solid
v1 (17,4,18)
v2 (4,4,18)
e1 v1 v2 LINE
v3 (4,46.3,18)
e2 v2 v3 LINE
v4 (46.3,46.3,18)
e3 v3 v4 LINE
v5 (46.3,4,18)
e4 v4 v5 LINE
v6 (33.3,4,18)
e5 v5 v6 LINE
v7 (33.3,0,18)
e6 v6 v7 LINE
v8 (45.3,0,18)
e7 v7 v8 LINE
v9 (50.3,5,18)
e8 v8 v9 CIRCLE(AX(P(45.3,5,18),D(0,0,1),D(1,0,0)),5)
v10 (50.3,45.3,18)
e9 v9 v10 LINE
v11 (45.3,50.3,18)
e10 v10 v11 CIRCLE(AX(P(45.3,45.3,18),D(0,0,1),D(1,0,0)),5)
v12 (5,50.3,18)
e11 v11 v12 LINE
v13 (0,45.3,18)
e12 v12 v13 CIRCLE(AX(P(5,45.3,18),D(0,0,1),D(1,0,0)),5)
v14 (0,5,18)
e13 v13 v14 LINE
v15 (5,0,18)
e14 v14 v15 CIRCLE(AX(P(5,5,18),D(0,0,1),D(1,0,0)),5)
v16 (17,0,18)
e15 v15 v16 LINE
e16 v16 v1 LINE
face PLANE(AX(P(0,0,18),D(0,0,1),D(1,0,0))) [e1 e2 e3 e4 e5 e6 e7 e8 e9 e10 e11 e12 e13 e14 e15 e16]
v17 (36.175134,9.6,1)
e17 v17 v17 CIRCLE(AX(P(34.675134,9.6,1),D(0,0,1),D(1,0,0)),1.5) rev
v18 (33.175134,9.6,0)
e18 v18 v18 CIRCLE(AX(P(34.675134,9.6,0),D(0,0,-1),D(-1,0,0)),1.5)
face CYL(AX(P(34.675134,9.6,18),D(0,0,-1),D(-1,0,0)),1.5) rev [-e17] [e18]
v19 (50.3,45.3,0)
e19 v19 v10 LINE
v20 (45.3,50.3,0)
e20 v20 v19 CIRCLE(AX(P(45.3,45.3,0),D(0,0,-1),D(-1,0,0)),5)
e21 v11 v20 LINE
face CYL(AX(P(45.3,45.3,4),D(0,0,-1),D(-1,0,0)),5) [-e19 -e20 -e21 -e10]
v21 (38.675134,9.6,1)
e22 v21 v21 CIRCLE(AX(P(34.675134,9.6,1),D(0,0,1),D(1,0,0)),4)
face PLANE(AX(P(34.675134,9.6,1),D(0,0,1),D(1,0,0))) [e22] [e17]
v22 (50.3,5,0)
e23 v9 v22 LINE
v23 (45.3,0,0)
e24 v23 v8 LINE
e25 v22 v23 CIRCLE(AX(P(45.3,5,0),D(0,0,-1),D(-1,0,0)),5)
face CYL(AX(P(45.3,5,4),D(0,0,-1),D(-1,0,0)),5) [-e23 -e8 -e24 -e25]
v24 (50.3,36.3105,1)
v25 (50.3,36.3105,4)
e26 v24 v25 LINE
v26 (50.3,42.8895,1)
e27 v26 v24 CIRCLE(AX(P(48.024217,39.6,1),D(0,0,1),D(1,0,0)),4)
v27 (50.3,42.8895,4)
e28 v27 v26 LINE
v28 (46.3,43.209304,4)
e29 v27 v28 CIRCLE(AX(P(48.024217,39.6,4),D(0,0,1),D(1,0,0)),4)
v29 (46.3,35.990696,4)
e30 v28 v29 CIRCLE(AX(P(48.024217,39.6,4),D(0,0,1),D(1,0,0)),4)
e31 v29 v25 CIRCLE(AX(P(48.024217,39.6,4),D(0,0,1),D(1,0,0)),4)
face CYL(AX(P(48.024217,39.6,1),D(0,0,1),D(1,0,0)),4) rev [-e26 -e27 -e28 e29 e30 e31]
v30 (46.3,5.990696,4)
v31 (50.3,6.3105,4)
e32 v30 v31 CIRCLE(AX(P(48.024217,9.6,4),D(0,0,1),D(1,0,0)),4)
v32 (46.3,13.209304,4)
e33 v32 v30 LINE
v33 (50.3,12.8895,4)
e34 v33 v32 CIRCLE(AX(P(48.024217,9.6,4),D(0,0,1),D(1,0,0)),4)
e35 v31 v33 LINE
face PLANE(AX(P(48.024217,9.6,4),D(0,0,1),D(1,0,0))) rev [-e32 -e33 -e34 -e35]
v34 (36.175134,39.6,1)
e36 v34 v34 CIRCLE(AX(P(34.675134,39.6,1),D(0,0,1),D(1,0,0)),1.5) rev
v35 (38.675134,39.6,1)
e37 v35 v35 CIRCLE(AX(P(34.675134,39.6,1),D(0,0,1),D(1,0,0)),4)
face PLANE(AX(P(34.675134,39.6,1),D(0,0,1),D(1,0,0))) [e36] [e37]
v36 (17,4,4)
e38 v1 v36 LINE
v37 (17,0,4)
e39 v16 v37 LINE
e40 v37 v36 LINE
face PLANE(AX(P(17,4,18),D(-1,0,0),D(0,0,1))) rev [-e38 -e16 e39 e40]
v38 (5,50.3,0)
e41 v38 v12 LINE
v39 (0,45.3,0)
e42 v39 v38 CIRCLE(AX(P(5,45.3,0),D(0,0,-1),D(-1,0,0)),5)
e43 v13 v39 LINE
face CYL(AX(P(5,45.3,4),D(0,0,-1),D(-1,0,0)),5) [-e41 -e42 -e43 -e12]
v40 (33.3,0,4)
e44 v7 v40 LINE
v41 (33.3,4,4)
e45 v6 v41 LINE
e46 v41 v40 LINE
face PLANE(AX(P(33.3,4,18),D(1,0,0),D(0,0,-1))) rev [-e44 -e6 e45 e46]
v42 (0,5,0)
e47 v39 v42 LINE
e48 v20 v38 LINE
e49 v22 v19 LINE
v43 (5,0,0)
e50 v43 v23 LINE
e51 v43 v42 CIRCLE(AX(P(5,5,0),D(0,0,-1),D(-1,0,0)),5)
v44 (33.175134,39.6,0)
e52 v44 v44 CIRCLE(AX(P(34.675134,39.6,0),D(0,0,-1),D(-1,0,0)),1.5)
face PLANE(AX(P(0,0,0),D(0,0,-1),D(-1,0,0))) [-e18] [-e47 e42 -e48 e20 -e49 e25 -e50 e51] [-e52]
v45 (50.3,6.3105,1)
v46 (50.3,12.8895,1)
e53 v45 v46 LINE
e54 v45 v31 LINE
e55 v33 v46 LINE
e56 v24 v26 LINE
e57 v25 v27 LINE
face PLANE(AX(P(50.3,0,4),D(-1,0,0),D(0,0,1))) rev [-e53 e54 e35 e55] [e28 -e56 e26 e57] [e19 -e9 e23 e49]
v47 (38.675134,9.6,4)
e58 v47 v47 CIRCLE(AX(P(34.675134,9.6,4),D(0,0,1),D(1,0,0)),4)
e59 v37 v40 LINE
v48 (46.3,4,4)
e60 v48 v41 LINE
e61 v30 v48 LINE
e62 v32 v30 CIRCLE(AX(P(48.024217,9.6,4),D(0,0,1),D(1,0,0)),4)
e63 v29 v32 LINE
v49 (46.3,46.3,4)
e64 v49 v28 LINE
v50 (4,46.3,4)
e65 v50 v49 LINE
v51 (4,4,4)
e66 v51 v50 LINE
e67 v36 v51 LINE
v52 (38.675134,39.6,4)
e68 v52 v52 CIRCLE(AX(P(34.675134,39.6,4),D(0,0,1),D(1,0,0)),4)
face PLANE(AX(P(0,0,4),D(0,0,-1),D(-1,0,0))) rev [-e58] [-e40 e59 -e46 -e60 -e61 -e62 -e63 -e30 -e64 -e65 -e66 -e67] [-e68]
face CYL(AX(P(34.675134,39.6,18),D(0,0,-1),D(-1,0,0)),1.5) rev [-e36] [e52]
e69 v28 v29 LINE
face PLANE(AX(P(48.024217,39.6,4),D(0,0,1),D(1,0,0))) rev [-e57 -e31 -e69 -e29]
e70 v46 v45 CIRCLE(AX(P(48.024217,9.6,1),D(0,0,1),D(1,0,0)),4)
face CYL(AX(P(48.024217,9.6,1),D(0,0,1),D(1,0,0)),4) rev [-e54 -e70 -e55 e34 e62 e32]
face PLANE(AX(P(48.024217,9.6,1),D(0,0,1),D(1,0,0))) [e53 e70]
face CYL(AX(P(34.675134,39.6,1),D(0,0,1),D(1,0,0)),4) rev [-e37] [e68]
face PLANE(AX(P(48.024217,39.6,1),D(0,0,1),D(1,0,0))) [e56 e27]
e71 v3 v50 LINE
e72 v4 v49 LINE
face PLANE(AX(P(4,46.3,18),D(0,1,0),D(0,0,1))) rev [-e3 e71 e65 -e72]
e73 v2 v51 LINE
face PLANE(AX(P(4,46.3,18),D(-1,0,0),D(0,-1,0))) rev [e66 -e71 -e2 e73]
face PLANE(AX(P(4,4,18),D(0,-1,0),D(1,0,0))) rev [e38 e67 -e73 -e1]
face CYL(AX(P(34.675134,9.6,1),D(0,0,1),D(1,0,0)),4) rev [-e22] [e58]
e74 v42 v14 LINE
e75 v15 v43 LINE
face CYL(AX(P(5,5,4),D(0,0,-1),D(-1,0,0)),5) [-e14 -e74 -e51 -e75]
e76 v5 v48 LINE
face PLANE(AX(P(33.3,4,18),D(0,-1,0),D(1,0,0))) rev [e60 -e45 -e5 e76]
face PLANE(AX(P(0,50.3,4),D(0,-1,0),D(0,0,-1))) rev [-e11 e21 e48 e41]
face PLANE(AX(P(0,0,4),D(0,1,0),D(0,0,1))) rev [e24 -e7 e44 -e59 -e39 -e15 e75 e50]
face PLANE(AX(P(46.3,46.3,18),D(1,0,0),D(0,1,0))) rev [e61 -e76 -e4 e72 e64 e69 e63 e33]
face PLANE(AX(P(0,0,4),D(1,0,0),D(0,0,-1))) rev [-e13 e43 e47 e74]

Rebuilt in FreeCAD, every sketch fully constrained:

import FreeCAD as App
import Part
import Sketcher

V = App.Vector
Q = App.Units.Quantity


def edges_at(feature, points):
    """Names of the edges that pass closest to the given points."""
    edges = feature.Shape.Edges
    near = lambda p: min(range(len(edges)), key=lambda i: edges[i].distToShape(Part.Vertex(*p))[0])
    return sorted({f"Edge{near(p) + 1}" for p in points})

doc = App.newDocument("Part")
params = doc.addObject("Spreadsheet::Sheet", "Params")
for row, (alias, value) in enumerate([
    ("sketch1_width", "50.3 mm"),
    ("pad1_length", "4 mm"),
    ("sketch2_width", "13 mm"),
    ("sketch2_width2", "17 mm"),
    ("sketch2_height", "4 mm"),
    ("sketch2_width3", "42.3 mm"),
    ("pad2_length", "14 mm"),
    ("sketch3_diameter", "3 mm"),
    ("fillet_radius", "5 mm"),
    ("sketch4_diameter", "8 mm"),
    ("pocket2_length", "3 mm"),
    ("fillet2_radius", "5 mm"),
], start=1):
    params.set(f"A{row}", alias)
    params.set(f"B{row}", "=" + value)
    params.setAlias(f"B{row}", alias)

body = doc.addObject("PartDesign::Body", "Body")

sketch1 = body.newObject("Sketcher::SketchObject", "Sketch")
sketch1.AttachmentSupport = (doc.getObject("XY_Plane"), [""])
sketch1.MapMode = "FlatFace"
sketch1.addGeometry([
    Part.LineSegment(V(0, 50.3, 0), V(0, 0, 0)),
    Part.LineSegment(V(0, 0, 0), V(50.3, 0, 0)),
    Part.LineSegment(V(50.3, 0, 0), V(50.3, 50.3, 0)),
    Part.LineSegment(V(50.3, 50.3, 0), V(0, 50.3, 0)),
], False)
sketch1.addConstraint([
    Sketcher.Constraint("Coincident", 0, 2, 1, 1),
    Sketcher.Constraint("Coincident", 1, 2, 2, 1),
    Sketcher.Constraint("Coincident", 2, 2, 3, 1),
    Sketcher.Constraint("Coincident", 3, 2, 0, 1),
    Sketcher.Constraint("Vertical", 0),
    Sketcher.Constraint("Horizontal", 1),
    Sketcher.Constraint("Vertical", 2),
    Sketcher.Constraint("Horizontal", 3),
    Sketcher.Constraint("Coincident", 0, 2, -1, 1),
    Sketcher.Constraint("Equal", 3, 0),
    Sketcher.Constraint("DistanceX", 1, 1, 1, 2, Q("50.3 mm")),
])
sketch1.setExpression("Constraints[10]", "Params.sketch1_width")
pad1 = body.newObject("PartDesign::Pad", "Pad")
pad1.Profile = sketch1
pad1.setExpression("Length", "Params.pad1_length")

sketch2 = body.newObject("Sketcher::SketchObject", "Sketch001")
sketch2.AttachmentSupport = (doc.getObject("XY_Plane"), [""])
sketch2.MapMode = "FlatFace"
sketch2.AttachmentOffset = App.Placement(V(0, 0, 4), App.Rotation())
sketch2.addGeometry([
    Part.LineSegment(V(4, 46.3, 0), V(46.3, 46.3, 0)),
    Part.LineSegment(V(46.3, 46.3, 0), V(46.3, 4, 0)),
    Part.LineSegment(V(46.3, 4, 0), V(33.3, 4, 0)),
    Part.LineSegment(V(33.3, 4, 0), V(33.3, 0, 0)),
    Part.LineSegment(V(33.3, 0, 0), V(50.3, 0, 0)),
    Part.LineSegment(V(50.3, 0, 0), V(50.3, 50.3, 0)),
    Part.LineSegment(V(50.3, 50.3, 0), V(0, 50.3, 0)),
    Part.LineSegment(V(0, 50.3, 0), V(0, 0, 0)),
    Part.LineSegment(V(0, 0, 0), V(17, 0, 0)),
    Part.LineSegment(V(17, 0, 0), V(17, 4, 0)),
    Part.LineSegment(V(17, 4, 0), V(4, 4, 0)),
    Part.LineSegment(V(4, 4, 0), V(4, 46.3, 0)),
], False)
sketch2.addConstraint([
    Sketcher.Constraint("Coincident", 0, 2, 1, 1),
    Sketcher.Constraint("Coincident", 1, 2, 2, 1),
    Sketcher.Constraint("Coincident", 2, 2, 3, 1),
    Sketcher.Constraint("Coincident", 3, 2, 4, 1),
    Sketcher.Constraint("Coincident", 4, 2, 5, 1),
    Sketcher.Constraint("Coincident", 5, 2, 6, 1),
    Sketcher.Constraint("Coincident", 6, 2, 7, 1),
    Sketcher.Constraint("Coincident", 7, 2, 8, 1),
    Sketcher.Constraint("Coincident", 8, 2, 9, 1),
    Sketcher.Constraint("Coincident", 9, 2, 10, 1),
    Sketcher.Constraint("Coincident", 10, 2, 11, 1),
    Sketcher.Constraint("Coincident", 11, 2, 0, 1),
    Sketcher.Constraint("Horizontal", 0),
    Sketcher.Constraint("Vertical", 1),
    Sketcher.Constraint("Horizontal", 2),
    Sketcher.Constraint("Vertical", 3),
    Sketcher.Constraint("Horizontal", 4),
    Sketcher.Constraint("Vertical", 5),
    Sketcher.Constraint("Horizontal", 6),
    Sketcher.Constraint("Vertical", 7),
    Sketcher.Constraint("Horizontal", 8),
    Sketcher.Constraint("Vertical", 9),
    Sketcher.Constraint("Horizontal", 10),
    Sketcher.Constraint("Vertical", 11),
    Sketcher.Constraint("Coincident", 7, 2, -1, 1),
    Sketcher.Constraint("PointOnObject", 3, 2, -1),
    Sketcher.Constraint("Horizontal", 2, 2, 9, 2),
    Sketcher.Constraint("Equal", 4, 8),
    Sketcher.Constraint("Equal", 2, 10),
    Sketcher.Constraint("Equal", 0, 1),
    Sketcher.Constraint("Equal", 6, 5),
    Sketcher.Constraint("DistanceX", 2, 2, 2, 1, Q("13 mm")),
    Sketcher.Constraint("DistanceX", 4, 1, 4, 2, Q("17 mm")),
    Sketcher.Constraint("DistanceY", 3, 2, 3, 1, Q("4 mm")),
    Sketcher.Constraint("DistanceX", 0, 1, 0, 2, Q("42.3 mm")),
])
sketch2.setExpression("Constraints[31]", "Params.sketch2_width")
sketch2.setExpression("Constraints[32]", "Params.sketch2_width2")
sketch2.setExpression("Constraints[33]", "Params.sketch2_height")
sketch2.setExpression("Constraints[34]", "Params.sketch2_width3")
pad2 = body.newObject("PartDesign::Pad", "Pad001")
pad2.Profile = sketch2
pad2.setExpression("Length", "Params.pad2_length")

sketch3 = body.newObject("Sketcher::SketchObject", "Sketch002")
sketch3.AttachmentSupport = (doc.getObject("XY_Plane"), [""])
sketch3.MapMode = "FlatFace"
sketch3.addGeometry([
    Part.Circle(V(34.675134, 39.6, 0), V(0, 0, 1), 1.5),
    Part.Circle(V(59.675134, 39.6, 0), V(0, 0, 1), 1.5),
    Part.Circle(V(59.675134, 9.6, 0), V(0, 0, 1), 1.5),
    Part.Circle(V(34.675134, 9.6, 0), V(0, 0, 1), 1.5),
], False)
sketch3.addConstraint([
    Sketcher.Constraint("Equal", 0, 1),
    Sketcher.Constraint("Equal", 1, 2),
    Sketcher.Constraint("Equal", 2, 3),
    Sketcher.Constraint("Horizontal", 0, 3, 1, 3),
    Sketcher.Constraint("Horizontal", 2, 3, 3, 3),
    Sketcher.Constraint("Vertical", 1, 3, 2, 3),
    Sketcher.Constraint("Vertical", 0, 3, 3, 3),
    Sketcher.Constraint("Diameter", 0, Q("3 mm")),
    Sketcher.Constraint("DistanceX", 0, 3, 1, 3, Q("25 mm")),
    Sketcher.Constraint("DistanceY", 2, 3, 1, 3, Q("30 mm")),
    Sketcher.Constraint("DistanceY", -1, 1, 0, 3, Q("39.6 mm")),
    Sketcher.Constraint("DistanceX", -1, 1, 0, 3, Q("34.675134 mm")),
])
sketch3.setExpression("Constraints[7]", "Params.sketch3_diameter")
pocket1 = body.newObject("PartDesign::Pocket", "Pocket")
pocket1.Profile = sketch3
pocket1.Type = "ThroughAll"
pocket1.Reversed = True
doc.recompute()

fillet = body.newObject("PartDesign::Fillet", "Fillet")
fillet.Base = (pocket1, edges_at(pocket1, [(0, 50.3, 9)]))
fillet.setExpression("Radius", "Params.fillet_radius")

sketch4 = body.newObject("Sketcher::SketchObject", "Sketch003")
sketch4.AttachmentSupport = (doc.getObject("XY_Plane"), [""])
sketch4.MapMode = "FlatFace"
sketch4.AttachmentOffset = App.Placement(V(0, 0, 4), App.Rotation())
sketch4.addGeometry([
    Part.Circle(V(34.675134, 39.6, 0), V(0, 0, 1), 4),
    Part.Circle(V(34.675134, 9.6, 0), V(0, 0, 1), 4),
    Part.Circle(V(48.024217, 39.6, 0), V(0, 0, 1), 4),
    Part.Circle(V(48.024217, 9.6, 0), V(0, 0, 1), 4),
], False)
sketch4.addConstraint([
    Sketcher.Constraint("Equal", 0, 1),
    Sketcher.Constraint("Equal", 1, 2),
    Sketcher.Constraint("Equal", 2, 3),
    Sketcher.Constraint("Horizontal", 0, 3, 2, 3),
    Sketcher.Constraint("Horizontal", 1, 3, 3, 3),
    Sketcher.Constraint("Vertical", 0, 3, 1, 3),
    Sketcher.Constraint("Vertical", 2, 3, 3, 3),
    Sketcher.Constraint("Diameter", 0, Q("8 mm")),
    Sketcher.Constraint("DistanceY", 1, 3, 0, 3, Q("30 mm")),
    Sketcher.Constraint("DistanceY", -1, 1, 0, 3, Q("39.6 mm")),
    Sketcher.Constraint("DistanceX", -1, 1, 0, 3, Q("34.675134 mm")),
    Sketcher.Constraint("DistanceX", -1, 1, 2, 3, Q("48.024217 mm")),
])
sketch4.setExpression("Constraints[7]", "Params.sketch4_diameter")
pocket2 = body.newObject("PartDesign::Pocket", "Pocket001")
pocket2.Profile = sketch4
pocket2.setExpression("Length", "Params.pocket2_length")
doc.recompute()

fillet2 = body.newObject("PartDesign::Fillet", "Fillet001")
fillet2.Base = (pocket2, edges_at(pocket2, [(50.3, 50.3, 9), (50.3, 0, 9), (0, 0, 9)]))
fillet2.setExpression("Radius", "Params.fillet2_radius")

doc.recompute()
